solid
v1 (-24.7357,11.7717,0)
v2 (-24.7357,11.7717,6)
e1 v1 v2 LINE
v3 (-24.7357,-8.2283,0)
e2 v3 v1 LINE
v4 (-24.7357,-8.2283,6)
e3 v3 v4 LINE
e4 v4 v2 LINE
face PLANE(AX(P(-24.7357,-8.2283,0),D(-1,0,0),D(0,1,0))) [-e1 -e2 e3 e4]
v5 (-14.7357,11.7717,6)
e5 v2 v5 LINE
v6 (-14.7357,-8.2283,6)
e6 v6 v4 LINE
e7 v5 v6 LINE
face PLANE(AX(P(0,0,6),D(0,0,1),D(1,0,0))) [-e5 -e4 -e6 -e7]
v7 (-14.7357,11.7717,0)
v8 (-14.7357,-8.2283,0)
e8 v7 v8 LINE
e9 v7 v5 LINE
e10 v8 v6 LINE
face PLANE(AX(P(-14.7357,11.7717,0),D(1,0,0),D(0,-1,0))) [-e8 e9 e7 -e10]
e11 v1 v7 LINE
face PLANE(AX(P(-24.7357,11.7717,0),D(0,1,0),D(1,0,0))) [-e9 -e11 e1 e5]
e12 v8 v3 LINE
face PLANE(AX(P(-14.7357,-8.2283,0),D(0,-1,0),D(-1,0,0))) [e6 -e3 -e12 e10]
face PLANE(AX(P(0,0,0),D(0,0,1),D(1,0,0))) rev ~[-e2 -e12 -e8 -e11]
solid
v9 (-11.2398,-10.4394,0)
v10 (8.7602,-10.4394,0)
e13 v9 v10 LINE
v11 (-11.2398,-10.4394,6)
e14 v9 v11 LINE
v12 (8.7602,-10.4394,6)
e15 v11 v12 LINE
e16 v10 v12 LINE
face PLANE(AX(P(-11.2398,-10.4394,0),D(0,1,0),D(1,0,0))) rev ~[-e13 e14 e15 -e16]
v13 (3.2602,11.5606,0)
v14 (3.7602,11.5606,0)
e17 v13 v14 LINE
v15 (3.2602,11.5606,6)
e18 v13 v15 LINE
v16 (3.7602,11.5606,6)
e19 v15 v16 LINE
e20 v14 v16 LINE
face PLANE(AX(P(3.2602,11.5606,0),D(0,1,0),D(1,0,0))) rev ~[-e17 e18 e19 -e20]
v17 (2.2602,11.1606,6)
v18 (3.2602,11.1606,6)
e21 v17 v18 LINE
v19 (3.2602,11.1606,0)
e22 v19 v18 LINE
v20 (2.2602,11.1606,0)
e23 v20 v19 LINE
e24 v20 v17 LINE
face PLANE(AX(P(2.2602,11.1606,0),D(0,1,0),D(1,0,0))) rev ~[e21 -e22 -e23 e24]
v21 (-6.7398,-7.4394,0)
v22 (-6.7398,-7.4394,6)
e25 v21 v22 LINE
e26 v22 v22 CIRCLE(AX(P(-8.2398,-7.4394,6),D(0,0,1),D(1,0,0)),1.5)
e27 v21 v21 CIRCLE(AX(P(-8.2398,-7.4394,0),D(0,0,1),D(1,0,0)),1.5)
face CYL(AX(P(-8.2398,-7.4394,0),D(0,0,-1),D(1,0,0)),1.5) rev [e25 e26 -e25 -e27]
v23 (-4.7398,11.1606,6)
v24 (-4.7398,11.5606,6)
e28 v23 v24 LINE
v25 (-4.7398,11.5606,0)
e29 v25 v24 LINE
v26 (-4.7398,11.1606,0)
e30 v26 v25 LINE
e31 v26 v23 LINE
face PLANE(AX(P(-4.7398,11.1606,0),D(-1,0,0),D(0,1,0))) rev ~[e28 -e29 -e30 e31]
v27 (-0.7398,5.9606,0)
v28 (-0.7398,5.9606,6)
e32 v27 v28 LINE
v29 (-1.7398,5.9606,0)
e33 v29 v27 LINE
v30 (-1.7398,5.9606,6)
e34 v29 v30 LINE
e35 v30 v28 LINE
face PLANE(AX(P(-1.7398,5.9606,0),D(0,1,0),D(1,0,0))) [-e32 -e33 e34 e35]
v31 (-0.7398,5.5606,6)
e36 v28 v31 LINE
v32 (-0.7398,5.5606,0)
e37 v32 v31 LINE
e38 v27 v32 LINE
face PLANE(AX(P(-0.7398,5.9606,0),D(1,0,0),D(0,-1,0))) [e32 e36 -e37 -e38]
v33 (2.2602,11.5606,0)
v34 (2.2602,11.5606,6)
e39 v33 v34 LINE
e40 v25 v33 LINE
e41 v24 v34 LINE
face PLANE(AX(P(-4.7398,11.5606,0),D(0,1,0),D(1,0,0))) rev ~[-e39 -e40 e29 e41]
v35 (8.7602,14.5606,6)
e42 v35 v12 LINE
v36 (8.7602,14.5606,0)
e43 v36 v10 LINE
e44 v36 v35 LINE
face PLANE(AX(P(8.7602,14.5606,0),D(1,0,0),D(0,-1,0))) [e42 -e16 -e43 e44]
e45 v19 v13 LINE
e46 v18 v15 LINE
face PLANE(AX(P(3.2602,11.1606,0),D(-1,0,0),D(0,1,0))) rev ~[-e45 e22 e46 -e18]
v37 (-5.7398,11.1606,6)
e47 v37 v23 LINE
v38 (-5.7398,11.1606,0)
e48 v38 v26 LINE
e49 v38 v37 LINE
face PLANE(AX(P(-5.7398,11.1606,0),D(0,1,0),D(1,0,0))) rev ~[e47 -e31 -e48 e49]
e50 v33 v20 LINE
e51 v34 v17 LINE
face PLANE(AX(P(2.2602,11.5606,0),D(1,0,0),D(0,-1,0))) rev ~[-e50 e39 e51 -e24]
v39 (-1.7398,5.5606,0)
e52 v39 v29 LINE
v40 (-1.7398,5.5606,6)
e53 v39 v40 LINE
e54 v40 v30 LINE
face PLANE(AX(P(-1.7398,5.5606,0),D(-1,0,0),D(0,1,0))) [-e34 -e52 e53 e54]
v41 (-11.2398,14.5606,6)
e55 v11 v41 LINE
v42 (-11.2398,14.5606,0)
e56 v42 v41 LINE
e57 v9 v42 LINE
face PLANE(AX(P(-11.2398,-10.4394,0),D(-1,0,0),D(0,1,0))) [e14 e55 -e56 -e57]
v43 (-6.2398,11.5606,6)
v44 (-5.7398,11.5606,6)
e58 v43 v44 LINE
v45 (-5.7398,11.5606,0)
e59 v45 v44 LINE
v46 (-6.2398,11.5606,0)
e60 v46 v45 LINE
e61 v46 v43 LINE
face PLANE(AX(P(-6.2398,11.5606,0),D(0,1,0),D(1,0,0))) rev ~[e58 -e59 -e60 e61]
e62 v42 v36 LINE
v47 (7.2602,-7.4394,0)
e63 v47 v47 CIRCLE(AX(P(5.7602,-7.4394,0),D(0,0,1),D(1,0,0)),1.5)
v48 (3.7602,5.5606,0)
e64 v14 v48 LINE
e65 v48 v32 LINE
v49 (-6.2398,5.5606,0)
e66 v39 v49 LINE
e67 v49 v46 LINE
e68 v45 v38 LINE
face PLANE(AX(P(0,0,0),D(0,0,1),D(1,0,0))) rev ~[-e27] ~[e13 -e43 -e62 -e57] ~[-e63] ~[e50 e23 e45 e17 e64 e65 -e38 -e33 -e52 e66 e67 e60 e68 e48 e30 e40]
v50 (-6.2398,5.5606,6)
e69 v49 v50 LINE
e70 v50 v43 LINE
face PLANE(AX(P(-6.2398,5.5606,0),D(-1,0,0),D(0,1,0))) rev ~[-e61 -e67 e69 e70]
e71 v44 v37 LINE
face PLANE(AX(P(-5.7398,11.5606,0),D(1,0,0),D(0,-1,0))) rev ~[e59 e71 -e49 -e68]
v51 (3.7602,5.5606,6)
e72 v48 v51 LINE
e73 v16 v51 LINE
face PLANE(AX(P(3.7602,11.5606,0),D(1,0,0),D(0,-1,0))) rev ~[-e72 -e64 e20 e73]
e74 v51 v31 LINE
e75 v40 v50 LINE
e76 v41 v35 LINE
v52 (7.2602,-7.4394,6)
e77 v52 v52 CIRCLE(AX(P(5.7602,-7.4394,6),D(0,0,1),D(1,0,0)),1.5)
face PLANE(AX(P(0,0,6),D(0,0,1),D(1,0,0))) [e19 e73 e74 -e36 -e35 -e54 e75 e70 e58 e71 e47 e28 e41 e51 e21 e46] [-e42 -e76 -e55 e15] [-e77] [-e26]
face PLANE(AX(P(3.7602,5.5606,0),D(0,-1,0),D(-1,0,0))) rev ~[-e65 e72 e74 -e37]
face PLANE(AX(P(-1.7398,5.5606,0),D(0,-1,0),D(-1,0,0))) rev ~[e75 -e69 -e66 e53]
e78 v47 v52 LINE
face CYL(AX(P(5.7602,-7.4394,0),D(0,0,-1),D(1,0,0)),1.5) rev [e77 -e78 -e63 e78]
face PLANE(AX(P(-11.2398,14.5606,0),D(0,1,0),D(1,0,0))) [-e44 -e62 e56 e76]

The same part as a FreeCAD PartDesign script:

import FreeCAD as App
import Part
import Sketcher
Q = App.Units.Quantity

doc = App.newDocument("Part")
body = doc.addObject("PartDesign::Body", "Body")
body.AllowCompound = True

# Sketch on XY plane
sketch1 = body.newObject("Sketcher::SketchObject", "Sketch")
sketch1.AttachmentSupport = (doc.getObject("XY_Plane"), [""])
sketch1.MapMode = "FlatFace"
sketch1.addGeometry([
    Part.LineSegment(App.Vector(8.76, 14.56, 0), App.Vector(-11.24, 14.56, 0)),  # 0
    Part.LineSegment(App.Vector(-11.24, 14.56, 0), App.Vector(-11.24, -10.44, 0)),  # 1
    Part.LineSegment(App.Vector(-11.24, -10.44, 0), App.Vector(8.76, -10.44, 0)),  # 2
    Part.LineSegment(App.Vector(8.76, -10.44, 0), App.Vector(8.76, 14.56, 0)),  # 3
    Part.Circle(App.Vector(-8.24, -7.44, 0), App.Vector(0, 0, 1), 1.5),  # 4
    Part.Circle(App.Vector(5.76, -7.44, 0), App.Vector(0, 0, 1), 1.5),  # 5
    Part.LineSegment(App.Vector(-6.24, 5.56, 0), App.Vector(-6.24, 11.56, 0)),  # 6
    Part.LineSegment(App.Vector(-6.24, 11.56, 0), App.Vector(-5.74, 11.56, 0)),  # 7
    Part.LineSegment(App.Vector(-5.74, 11.56, 0), App.Vector(-5.74, 11.16, 0)),  # 8
    Part.LineSegment(App.Vector(-5.74, 11.16, 0), App.Vector(-4.74, 11.16, 0)),  # 9
    Part.LineSegment(App.Vector(-4.74, 11.16, 0), App.Vector(-4.74, 11.56, 0)),  # 10
    Part.LineSegment(App.Vector(-4.74, 11.56, 0), App.Vector(2.26, 11.56, 0)),  # 11
    Part.LineSegment(App.Vector(2.26, 11.56, 0), App.Vector(2.26, 11.16, 0)),  # 12
    Part.LineSegment(App.Vector(2.26, 11.16, 0), App.Vector(3.26, 11.16, 0)),  # 13
    Part.LineSegment(App.Vector(3.26, 11.16, 0), App.Vector(3.26, 11.56, 0)),  # 14
    Part.LineSegment(App.Vector(3.26, 11.56, 0), App.Vector(3.76, 11.56, 0)),  # 15
    Part.LineSegment(App.Vector(3.76, 11.56, 0), App.Vector(3.76, 5.56, 0)),  # 16
    Part.LineSegment(App.Vector(3.76, 5.56, 0), App.Vector(-0.74, 5.56, 0)),  # 17
    Part.LineSegment(App.Vector(-0.74, 5.56, 0), App.Vector(-0.74, 5.96, 0)),  # 18
    Part.LineSegment(App.Vector(-0.74, 5.96, 0), App.Vector(-1.74, 5.96, 0)),  # 19
    Part.LineSegment(App.Vector(-1.74, 5.96, 0), App.Vector(-1.74, 5.56, 0)),  # 20
    Part.LineSegment(App.Vector(-1.74, 5.56, 0), App.Vector(-6.24, 5.56, 0)),  # 21
    Part.LineSegment(App.Vector(-14.74, 11.77, 0), App.Vector(-24.74, 11.77, 0)),  # 22
    Part.LineSegment(App.Vector(-24.74, 11.77, 0), App.Vector(-24.74, -8.23, 0)),  # 23
    Part.LineSegment(App.Vector(-24.74, -8.23, 0), App.Vector(-14.74, -8.23, 0)),  # 24
    Part.LineSegment(App.Vector(-14.74, -8.23, 0), App.Vector(-14.74, 11.77, 0)),  # 25
], False)
sketch1.addConstraint([
    Sketcher.Constraint("Coincident", 0, 2, 1, 1),
    Sketcher.Constraint("Coincident", 1, 2, 2, 1),
    Sketcher.Constraint("Coincident", 2, 2, 3, 1),
    Sketcher.Constraint("Coincident", 3, 2, 0, 1),
    Sketcher.Constraint("Coincident", 6, 2, 7, 1),
    Sketcher.Constraint("Coincident", 7, 2, 8, 1),
    Sketcher.Constraint("Coincident", 8, 2, 9, 1),
    Sketcher.Constraint("Coincident", 9, 2, 10, 1),
    Sketcher.Constraint("Coincident", 10, 2, 11, 1),
    Sketcher.Constraint("Coincident", 11, 2, 12, 1),
    Sketcher.Constraint("Coincident", 12, 2, 13, 1),
    Sketcher.Constraint("Coincident", 13, 2, 14, 1),
    Sketcher.Constraint("Coincident", 14, 2, 15, 1),
    Sketcher.Constraint("Coincident", 15, 2, 16, 1),
    Sketcher.Constraint("Coincident", 16, 2, 17, 1),
    Sketcher.Constraint("Coincident", 17, 2, 18, 1),
    Sketcher.Constraint("Coincident", 18, 2, 19, 1),
    Sketcher.Constraint("Coincident", 19, 2, 20, 1),
    Sketcher.Constraint("Coincident", 20, 2, 21, 1),
    Sketcher.Constraint("Coincident", 21, 2, 6, 1),
    Sketcher.Constraint("Coincident", 22, 2, 23, 1),
    Sketcher.Constraint("Coincident", 23, 2, 24, 1),
    Sketcher.Constraint("Coincident", 24, 2, 25, 1),
    Sketcher.Constraint("Coincident", 25, 2, 22, 1),
    Sketcher.Constraint("Horizontal", 0),
    Sketcher.Constraint("Vertical", 1),
    Sketcher.Constraint("Horizontal", 2),
    Sketcher.Constraint("Vertical", 3),
    Sketcher.Constraint("Vertical", 6),
    Sketcher.Constraint("Horizontal", 7),
    Sketcher.Constraint("Vertical", 8),
    Sketcher.Constraint("Horizontal", 9),
    Sketcher.Constraint("Vertical", 10),
    Sketcher.Constraint("Horizontal", 11),
    Sketcher.Constraint("Vertical", 12),
    Sketcher.Constraint("Horizontal", 13),
    Sketcher.Constraint("Vertical", 14),
    Sketcher.Constraint("Horizontal", 15),
    Sketcher.Constraint("Vertical", 16),
    Sketcher.Constraint("Horizontal", 17),
    Sketcher.Constraint("Vertical", 18),
    Sketcher.Constraint("Horizontal", 19),
    Sketcher.Constraint("Vertical", 20),
    Sketcher.Constraint("Horizontal", 21),
    Sketcher.Constraint("Horizontal", 22),
    Sketcher.Constraint("Vertical", 23),
    Sketcher.Constraint("Horizontal", 24),
    Sketcher.Constraint("Vertical", 25),
    Sketcher.Constraint("Equal", 4, 5),
    Sketcher.Constraint("Horizontal", 4, 3, 5, 3),
    Sketcher.Constraint("Horizontal", 7, 2, 10, 2),
    Sketcher.Constraint("Horizontal", 9, 2, 12, 2),
    Sketcher.Constraint("Horizontal", 11, 2, 14, 2),
    Sketcher.Constraint("Horizontal", 17, 2, 20, 2),
    Sketcher.Constraint("Equal", 9, 13),
    Sketcher.Constraint("Equal", 7, 15),
    Sketcher.Constraint("Equal", 13, 19),
    Sketcher.Constraint("Equal", 17, 21),
    Sketcher.Constraint("Equal", 14, 18),
    Sketcher.Constraint("Equal", 2, 23),
    Sketcher.Constraint("Diameter", 4, Q("3 mm")),
    Sketcher.Constraint("DistanceX", 0, 2, 0, 1, Q("20 mm")),
    Sketcher.Constraint("DistanceX", 9, 1, 9, 2, Q("1 mm")),
    Sketcher.Constraint("DistanceX", 22, 2, 22, 1, Q("10 mm")),
    Sketcher.Constraint("DistanceY", 1, 2, 1, 1, Q("25 mm")),
    Sketcher.Constraint("DistanceY", 6, 1, 6, 2, Q("6 mm")),
    Sketcher.Constraint("DistanceX", 7, 1, 7, 2, Q("0.5 mm")),
    Sketcher.Constraint("DistanceX", 17, 2, 17, 1, Q("4.5 mm")),
    Sketcher.Constraint("DistanceY", 8, 2, 8, 1, Q("0.4 mm")),
    Sketcher.Constraint("DistanceX", 0, 2, 4, 3, Q("3 mm")),
    Sketcher.Constraint("DistanceY", 1, 2, 4, 3, Q("3 mm")),
    Sketcher.Constraint("DistanceX", 5, 3, 2, 2, Q("3 mm")),
    Sketcher.Constraint("DistanceY", 6, 2, 0, 2, Q("3 mm")),
    Sketcher.Constraint("DistanceX", 0, 2, 6, 2, Q("5 mm")),
    Sketcher.Constraint("DistanceX", 22, 2, 0, 2, Q("13.496 mm")),
    Sketcher.Constraint("DistanceY", 22, 2, 0, 2, Q("2.789 mm")),
    Sketcher.Constraint("DistanceX", 4, 3, -1, 1, Q("8.2398 mm")),
    Sketcher.Constraint("DistanceY", 4, 3, -1, 1, Q("7.4394 mm")),
])
pad1 = body.newObject("PartDesign::Pad", "Pad")
pad1.Profile = sketch1
pad1.Length = 6

doc.recompute()
